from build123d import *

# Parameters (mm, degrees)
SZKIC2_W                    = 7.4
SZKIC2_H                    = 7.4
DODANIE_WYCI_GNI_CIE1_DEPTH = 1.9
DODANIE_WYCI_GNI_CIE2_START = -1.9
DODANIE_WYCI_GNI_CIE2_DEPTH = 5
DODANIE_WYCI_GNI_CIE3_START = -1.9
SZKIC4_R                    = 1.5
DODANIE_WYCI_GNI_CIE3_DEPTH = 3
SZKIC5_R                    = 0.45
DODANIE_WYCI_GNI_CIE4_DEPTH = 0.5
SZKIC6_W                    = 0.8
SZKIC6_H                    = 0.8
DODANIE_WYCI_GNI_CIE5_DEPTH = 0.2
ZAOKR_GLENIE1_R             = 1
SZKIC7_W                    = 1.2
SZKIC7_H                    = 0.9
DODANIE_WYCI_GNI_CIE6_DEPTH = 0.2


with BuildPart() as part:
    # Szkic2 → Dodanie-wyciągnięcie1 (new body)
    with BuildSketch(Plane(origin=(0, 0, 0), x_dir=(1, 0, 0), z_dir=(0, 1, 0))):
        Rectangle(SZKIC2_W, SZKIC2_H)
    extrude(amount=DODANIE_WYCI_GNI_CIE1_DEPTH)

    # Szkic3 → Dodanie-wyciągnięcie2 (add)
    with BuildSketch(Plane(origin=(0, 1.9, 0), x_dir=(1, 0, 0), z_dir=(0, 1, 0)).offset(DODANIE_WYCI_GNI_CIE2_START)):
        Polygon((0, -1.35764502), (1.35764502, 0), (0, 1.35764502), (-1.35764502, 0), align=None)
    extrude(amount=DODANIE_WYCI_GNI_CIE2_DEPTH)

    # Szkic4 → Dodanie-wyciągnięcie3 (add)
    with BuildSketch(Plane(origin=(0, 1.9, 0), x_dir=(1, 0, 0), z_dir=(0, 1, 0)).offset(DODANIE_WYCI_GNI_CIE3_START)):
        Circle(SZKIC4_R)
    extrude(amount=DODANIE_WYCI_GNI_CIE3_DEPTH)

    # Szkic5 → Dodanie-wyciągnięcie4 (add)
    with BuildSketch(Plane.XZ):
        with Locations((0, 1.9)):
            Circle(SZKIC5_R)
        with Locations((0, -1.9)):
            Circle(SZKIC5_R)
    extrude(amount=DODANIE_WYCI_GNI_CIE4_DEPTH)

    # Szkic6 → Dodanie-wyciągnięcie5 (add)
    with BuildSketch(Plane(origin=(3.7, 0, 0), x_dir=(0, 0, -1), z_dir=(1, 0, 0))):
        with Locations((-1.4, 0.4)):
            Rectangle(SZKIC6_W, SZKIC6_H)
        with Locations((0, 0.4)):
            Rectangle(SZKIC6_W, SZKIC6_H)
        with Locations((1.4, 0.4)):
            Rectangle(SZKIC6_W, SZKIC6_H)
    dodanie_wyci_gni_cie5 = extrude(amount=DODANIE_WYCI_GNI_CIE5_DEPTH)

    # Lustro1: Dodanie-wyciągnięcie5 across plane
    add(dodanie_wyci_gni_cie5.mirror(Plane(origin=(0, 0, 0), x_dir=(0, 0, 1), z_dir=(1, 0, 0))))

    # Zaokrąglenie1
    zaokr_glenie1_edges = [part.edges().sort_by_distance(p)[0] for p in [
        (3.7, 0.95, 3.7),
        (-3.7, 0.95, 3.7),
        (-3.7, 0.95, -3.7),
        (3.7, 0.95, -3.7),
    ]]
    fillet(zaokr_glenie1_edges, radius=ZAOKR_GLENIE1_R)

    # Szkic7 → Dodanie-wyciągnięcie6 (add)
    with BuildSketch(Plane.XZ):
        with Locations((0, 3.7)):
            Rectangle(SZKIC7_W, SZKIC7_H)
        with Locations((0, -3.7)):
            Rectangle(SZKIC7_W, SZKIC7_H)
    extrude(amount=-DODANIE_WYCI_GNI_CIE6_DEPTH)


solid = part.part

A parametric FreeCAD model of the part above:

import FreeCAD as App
import Part
import Sketcher

V = App.Vector
Q = App.Units.Quantity


def edges_at(feature, points):
    """Names of the edges that pass closest to the given points."""
    edges = feature.Shape.Edges
    near = lambda p: min(range(len(edges)), key=lambda i: edges[i].distToShape(Part.Vertex(*p))[0])
    return sorted({f"Edge{near(p) + 1}" for p in points})

doc = App.newDocument("Part")
body = doc.addObject("PartDesign::Body", "Body")

sketch1 = body.newObject("Sketcher::SketchObject", "Sketch")
sketch1.AttachmentSupport = (doc.getObject("XZ_Plane"), [""])
sketch1.MapMode = "FlatFace"
sketch1.addGeometry([
    Part.LineSegment(V(-3.7, -3.7, 0), V(-3.7, 3.7, 0)),
    Part.LineSegment(V(-3.7, 3.7, 0), V(3.7, 3.7, 0)),
    Part.LineSegment(V(3.7, 3.7, 0), V(3.7, -3.7, 0)),
    Part.LineSegment(V(3.7, -3.7, 0), V(-3.7, -3.7, 0)),
], False)
sketch1.addConstraint([
    Sketcher.Constraint("Coincident", 0, 2, 1, 1),
    Sketcher.Constraint("Coincident", 1, 2, 2, 1),
    Sketcher.Constraint("Coincident", 2, 2, 3, 1),
    Sketcher.Constraint("Coincident", 3, 2, 0, 1),
    Sketcher.Constraint("Vertical", 0),
    Sketcher.Constraint("Horizontal", 1),
    Sketcher.Constraint("Vertical", 2),
    Sketcher.Constraint("Horizontal", 3),
    Sketcher.Constraint("Symmetric", 0, 2, 2, 2, -1, 1),
    Sketcher.Constraint("Equal", 3, 0),
    Sketcher.Constraint("DistanceX", 1, 1, 1, 2, Q("7.4 mm")),
])
pad1 = body.newObject("PartDesign::Pad", "Pad")
pad1.Profile = sketch1
pad1.Length = 1.9
pad1.Reversed = True

sketch2 = body.newObject("Sketcher::SketchObject", "Sketch001")
sketch2.AttachmentSupport = (doc.getObject("XZ_Plane"), [""])
sketch2.MapMode = "FlatFace"
sketch2.addGeometry([
    Part.LineSegment(V(0, 1.357645, 0), V(1.357645, 0, 0)),
    Part.LineSegment(V(1.357645, 0, 0), V(0, -1.357645, 0)),
    Part.LineSegment(V(0, -1.357645, 0), V(-1.357645, 0, 0)),
    Part.LineSegment(V(-1.357645, 0, 0), V(0, 1.357645, 0)),
], False)
sketch2.addConstraint([
    Sketcher.Constraint("Coincident", 0, 2, 1, 1),
    Sketcher.Constraint("Coincident", 1, 2, 2, 1),
    Sketcher.Constraint("Coincident", 2, 2, 3, 1),
    Sketcher.Constraint("Coincident", 3, 2, 0, 1),
    Sketcher.Constraint("Symmetric", 0, 2, 2, 2, -1, 1),
    Sketcher.Constraint("Symmetric", 1, 2, 3, 2, -1, 1),
    Sketcher.Constraint("PointOnObject", 0, 2, -1),
    Sketcher.Constraint("PointOnObject", 1, 2, -2),
    Sketcher.Constraint("Perpendicular", 0, 1),
    Sketcher.Constraint("Distance", 0, Q("1.92 mm")),
])
pad2 = body.newObject("PartDesign::Pad", "Pad001")
pad2.Profile = sketch2
pad2.Length = 5
pad2.Reversed = True

sketch3 = body.newObject("Sketcher::SketchObject", "Sketch002")
sketch3.AttachmentSupport = (doc.getObject("XZ_Plane"), [""])
sketch3.MapMode = "FlatFace"
sketch3.addGeometry(Part.Circle(V(0, 0, 0), V(0, 0, 1), 1.5), False)
sketch3.addConstraint([
    Sketcher.Constraint("Coincident", 0, 3, -1, 1),
    Sketcher.Constraint("Diameter", 0, Q("3 mm")),
])
pad3 = body.newObject("PartDesign::Pad", "Pad002")
pad3.Profile = sketch3
pad3.Length = 3
pad3.Reversed = True

sketch4 = body.newObject("Sketcher::SketchObject", "Sketch003")
sketch4.AttachmentSupport = (doc.getObject("XZ_Plane"), [""])
sketch4.MapMode = "FlatFace"
sketch4.addGeometry([
    Part.Circle(V(0, 1.9, 0), V(0, 0, 1), 0.45),
    Part.Circle(V(0, -1.9, 0), V(0, 0, 1), 0.45),
], False)
sketch4.addConstraint([
    Sketcher.Constraint("Equal", 0, 1),
    Sketcher.Constraint("Symmetric", 0, 3, 1, 3, -1, 1),
    Sketcher.Constraint("PointOnObject", 0, 3, -2),
    Sketcher.Constraint("Diameter", 0, Q("0.9 mm")),
    Sketcher.Constraint("DistanceY", -1, 1, 0, 3, Q("1.9 mm")),
])
pad4 = body.newObject("PartDesign::Pad", "Pad003")
pad4.Profile = sketch4
pad4.Length = 0.5

sketch5 = body.newObject("Sketcher::SketchObject", "Sketch004")
sketch5.AttachmentSupport = (doc.getObject("YZ_Plane"), [""])
sketch5.MapMode = "FlatFace"
sketch5.AttachmentOffset = App.Placement(V(0, 0, 3.7), App.Rotation())
sketch5.addGeometry([
    Part.LineSegment(V(0.8, 1.8, 0), V(0, 1.8, 0)),
    Part.LineSegment(V(0, 1.8, 0), V(0, 1, 0)),
    Part.LineSegment(V(0, 1, 0), V(0.8, 1, 0)),
    Part.LineSegment(V(0.8, 1, 0), V(0.8, 1.8, 0)),
    Part.LineSegment(V(0.8, 0.4, 0), V(0, 0.4, 0)),
    Part.LineSegment(V(0, 0.4, 0), V(0, -0.4, 0)),
    Part.LineSegment(V(0, -0.4, 0), V(0.8, -0.4, 0)),
    Part.LineSegment(V(0.8, -0.4, 0), V(0.8, 0.4, 0)),
    Part.LineSegment(V(0.8, -1, 0), V(0, -1, 0)),
    Part.LineSegment(V(0, -1, 0), V(0, -1.8, 0)),
    Part.LineSegment(V(0, -1.8, 0), V(0.8, -1.8, 0)),
    Part.LineSegment(V(0.8, -1.8, 0), V(0.8, -1, 0)),
], False)
sketch5.addConstraint([
    Sketcher.Constraint("Coincident", 0, 2, 1, 1),
    Sketcher.Constraint("Coincident", 1, 2, 2, 1),
    Sketcher.Constraint("Coincident", 2, 2, 3, 1),
    Sketcher.Constraint("Coincident", 3, 2, 0, 1),
    Sketcher.Constraint("Coincident", 4, 2, 5, 1),
    Sketcher.Constraint("Coincident", 5, 2, 6, 1),
    Sketcher.Constraint("Coincident", 6, 2, 7, 1),
    Sketcher.Constraint("Coincident", 7, 2, 4, 1),
    Sketcher.Constraint("Coincident", 8, 2, 9, 1),
    Sketcher.Constraint("Coincident", 9, 2, 10, 1),
    Sketcher.Constraint("Coincident", 10, 2, 11, 1),
    Sketcher.Constraint("Coincident", 11, 2, 8, 1),
    Sketcher.Constraint("Horizontal", 0),
    Sketcher.Constraint("Vertical", 1),
    Sketcher.Constraint("Horizontal", 2),
    Sketcher.Constraint("Vertical", 3),
    Sketcher.Constraint("Horizontal", 4),
    Sketcher.Constraint("Vertical", 5),
    Sketcher.Constraint("Horizontal", 6),
    Sketcher.Constraint("Vertical", 7),
    Sketcher.Constraint("Horizontal", 8),
    Sketcher.Constraint("Vertical", 9),
    Sketcher.Constraint("Horizontal", 10),
    Sketcher.Constraint("Vertical", 11),
    Sketcher.Constraint("Symmetric", 4, 2, 5, 2, -1, 1),
    Sketcher.Constraint("Symmetric", 1, 2, 8, 2, -1, 1),
    Sketcher.Constraint("Symmetric", 0, 2, 9, 2, -1),
    Sketcher.Constraint("Vertical", 3, 2, 6, 2),
    Sketcher.Constraint("Vertical", 7, 2, 10, 2),
    Sketcher.Constraint("Equal", 10, 1),
    Sketcher.Constraint("Equal", 3, 5),
    Sketcher.Constraint("DistanceX", 0, 2, 0, 1, Q("0.8 mm")),
    Sketcher.Constraint("DistanceY", -1, 1, 1, 2, Q("1 mm")),
])
pad5 = body.newObject("PartDesign::Pad", "Pad004")
pad5.Profile = sketch5
pad5.Length = 0.2
doc.recompute()

mirrored = body.newObject("PartDesign::Mirrored", "Mirrored")
mirrored.Originals = [pad5]
mirrored.MirrorPlane = (doc.getObject("YZ_Plane"), [""])
body.Tip = mirrored
doc.recompute()

fillet = body.newObject("PartDesign::Fillet", "Fillet")
fillet.Base = (mirrored, edges_at(mirrored, [
    (3.7, 0.95, 3.7),
    (-3.7, 0.95, 3.7),
    (-3.7, 0.95, -3.7),
    (3.7, 0.95, -3.7),
]))
fillet.Radius = 1

sketch6 = body.newObject("Sketcher::SketchObject", "Sketch005")
sketch6.AttachmentSupport = (doc.getObject("XZ_Plane"), [""])
sketch6.MapMode = "FlatFace"
sketch6.addGeometry([
    Part.LineSegment(V(-0.6, 4.15, 0), V(-0.6, 3.25, 0)),
    Part.LineSegment(V(-0.6, 3.25, 0), V(0.6, 3.25, 0)),
    Part.LineSegment(V(0.6, 3.25, 0), V(0.6, 4.15, 0)),
    Part.LineSegment(V(0.6, 4.15, 0), V(-0.6, 4.15, 0)),
    Part.LineSegment(V(-0.6, -3.25, 0), V(-0.6, -4.15, 0)),
    Part.LineSegment(V(-0.6, -4.15, 0), V(0.6, -4.15, 0)),
    Part.LineSegment(V(0.6, -4.15, 0), V(0.6, -3.25, 0)),
    Part.LineSegment(V(0.6, -3.25, 0), V(-0.6, -3.25, 0)),
], False)
sketch6.addConstraint([
    Sketcher.Constraint("Coincident", 0, 2, 1, 1),
    Sketcher.Constraint("Coincident", 1, 2, 2, 1),
    Sketcher.Constraint("Coincident", 2, 2, 3, 1),
    Sketcher.Constraint("Coincident", 3, 2, 0, 1),
    Sketcher.Constraint("Coincident", 4, 2, 5, 1),
    Sketcher.Constraint("Coincident", 5, 2, 6, 1),
    Sketcher.Constraint("Coincident", 6, 2, 7, 1),
    Sketcher.Constraint("Coincident", 7, 2, 4, 1),
    Sketcher.Constraint("Vertical", 0),
    Sketcher.Constraint("Horizontal", 1),
    Sketcher.Constraint("Vertical", 2),
    Sketcher.Constraint("Horizontal", 3),
    Sketcher.Constraint("Vertical", 4),
    Sketcher.Constraint("Horizontal", 5),
    Sketcher.Constraint("Vertical", 6),
    Sketcher.Constraint("Horizontal", 7),
    Sketcher.Constraint("Symmetric", 2, 2, 4, 2, -1, 1),
    Sketcher.Constraint("Symmetric", 0, 2, 6, 2, -1, 1),
    Sketcher.Constraint("Vertical", 3, 2, 4, 2),
    Sketcher.Constraint("DistanceX", 1, 1, 1, 2, Q("1.2 mm")),
    Sketcher.Constraint("DistanceY", 0, 2, 0, 1, Q("0.9 mm")),
    Sketcher.Constraint("DistanceY", 4, 2, 0, 2, Q("7.4 mm")),
])
pad6 = body.newObject("PartDesign::Pad", "Pad005")
pad6.Profile = sketch6
pad6.Length = 0.2
pad6.Reversed = True

doc.recompute()
